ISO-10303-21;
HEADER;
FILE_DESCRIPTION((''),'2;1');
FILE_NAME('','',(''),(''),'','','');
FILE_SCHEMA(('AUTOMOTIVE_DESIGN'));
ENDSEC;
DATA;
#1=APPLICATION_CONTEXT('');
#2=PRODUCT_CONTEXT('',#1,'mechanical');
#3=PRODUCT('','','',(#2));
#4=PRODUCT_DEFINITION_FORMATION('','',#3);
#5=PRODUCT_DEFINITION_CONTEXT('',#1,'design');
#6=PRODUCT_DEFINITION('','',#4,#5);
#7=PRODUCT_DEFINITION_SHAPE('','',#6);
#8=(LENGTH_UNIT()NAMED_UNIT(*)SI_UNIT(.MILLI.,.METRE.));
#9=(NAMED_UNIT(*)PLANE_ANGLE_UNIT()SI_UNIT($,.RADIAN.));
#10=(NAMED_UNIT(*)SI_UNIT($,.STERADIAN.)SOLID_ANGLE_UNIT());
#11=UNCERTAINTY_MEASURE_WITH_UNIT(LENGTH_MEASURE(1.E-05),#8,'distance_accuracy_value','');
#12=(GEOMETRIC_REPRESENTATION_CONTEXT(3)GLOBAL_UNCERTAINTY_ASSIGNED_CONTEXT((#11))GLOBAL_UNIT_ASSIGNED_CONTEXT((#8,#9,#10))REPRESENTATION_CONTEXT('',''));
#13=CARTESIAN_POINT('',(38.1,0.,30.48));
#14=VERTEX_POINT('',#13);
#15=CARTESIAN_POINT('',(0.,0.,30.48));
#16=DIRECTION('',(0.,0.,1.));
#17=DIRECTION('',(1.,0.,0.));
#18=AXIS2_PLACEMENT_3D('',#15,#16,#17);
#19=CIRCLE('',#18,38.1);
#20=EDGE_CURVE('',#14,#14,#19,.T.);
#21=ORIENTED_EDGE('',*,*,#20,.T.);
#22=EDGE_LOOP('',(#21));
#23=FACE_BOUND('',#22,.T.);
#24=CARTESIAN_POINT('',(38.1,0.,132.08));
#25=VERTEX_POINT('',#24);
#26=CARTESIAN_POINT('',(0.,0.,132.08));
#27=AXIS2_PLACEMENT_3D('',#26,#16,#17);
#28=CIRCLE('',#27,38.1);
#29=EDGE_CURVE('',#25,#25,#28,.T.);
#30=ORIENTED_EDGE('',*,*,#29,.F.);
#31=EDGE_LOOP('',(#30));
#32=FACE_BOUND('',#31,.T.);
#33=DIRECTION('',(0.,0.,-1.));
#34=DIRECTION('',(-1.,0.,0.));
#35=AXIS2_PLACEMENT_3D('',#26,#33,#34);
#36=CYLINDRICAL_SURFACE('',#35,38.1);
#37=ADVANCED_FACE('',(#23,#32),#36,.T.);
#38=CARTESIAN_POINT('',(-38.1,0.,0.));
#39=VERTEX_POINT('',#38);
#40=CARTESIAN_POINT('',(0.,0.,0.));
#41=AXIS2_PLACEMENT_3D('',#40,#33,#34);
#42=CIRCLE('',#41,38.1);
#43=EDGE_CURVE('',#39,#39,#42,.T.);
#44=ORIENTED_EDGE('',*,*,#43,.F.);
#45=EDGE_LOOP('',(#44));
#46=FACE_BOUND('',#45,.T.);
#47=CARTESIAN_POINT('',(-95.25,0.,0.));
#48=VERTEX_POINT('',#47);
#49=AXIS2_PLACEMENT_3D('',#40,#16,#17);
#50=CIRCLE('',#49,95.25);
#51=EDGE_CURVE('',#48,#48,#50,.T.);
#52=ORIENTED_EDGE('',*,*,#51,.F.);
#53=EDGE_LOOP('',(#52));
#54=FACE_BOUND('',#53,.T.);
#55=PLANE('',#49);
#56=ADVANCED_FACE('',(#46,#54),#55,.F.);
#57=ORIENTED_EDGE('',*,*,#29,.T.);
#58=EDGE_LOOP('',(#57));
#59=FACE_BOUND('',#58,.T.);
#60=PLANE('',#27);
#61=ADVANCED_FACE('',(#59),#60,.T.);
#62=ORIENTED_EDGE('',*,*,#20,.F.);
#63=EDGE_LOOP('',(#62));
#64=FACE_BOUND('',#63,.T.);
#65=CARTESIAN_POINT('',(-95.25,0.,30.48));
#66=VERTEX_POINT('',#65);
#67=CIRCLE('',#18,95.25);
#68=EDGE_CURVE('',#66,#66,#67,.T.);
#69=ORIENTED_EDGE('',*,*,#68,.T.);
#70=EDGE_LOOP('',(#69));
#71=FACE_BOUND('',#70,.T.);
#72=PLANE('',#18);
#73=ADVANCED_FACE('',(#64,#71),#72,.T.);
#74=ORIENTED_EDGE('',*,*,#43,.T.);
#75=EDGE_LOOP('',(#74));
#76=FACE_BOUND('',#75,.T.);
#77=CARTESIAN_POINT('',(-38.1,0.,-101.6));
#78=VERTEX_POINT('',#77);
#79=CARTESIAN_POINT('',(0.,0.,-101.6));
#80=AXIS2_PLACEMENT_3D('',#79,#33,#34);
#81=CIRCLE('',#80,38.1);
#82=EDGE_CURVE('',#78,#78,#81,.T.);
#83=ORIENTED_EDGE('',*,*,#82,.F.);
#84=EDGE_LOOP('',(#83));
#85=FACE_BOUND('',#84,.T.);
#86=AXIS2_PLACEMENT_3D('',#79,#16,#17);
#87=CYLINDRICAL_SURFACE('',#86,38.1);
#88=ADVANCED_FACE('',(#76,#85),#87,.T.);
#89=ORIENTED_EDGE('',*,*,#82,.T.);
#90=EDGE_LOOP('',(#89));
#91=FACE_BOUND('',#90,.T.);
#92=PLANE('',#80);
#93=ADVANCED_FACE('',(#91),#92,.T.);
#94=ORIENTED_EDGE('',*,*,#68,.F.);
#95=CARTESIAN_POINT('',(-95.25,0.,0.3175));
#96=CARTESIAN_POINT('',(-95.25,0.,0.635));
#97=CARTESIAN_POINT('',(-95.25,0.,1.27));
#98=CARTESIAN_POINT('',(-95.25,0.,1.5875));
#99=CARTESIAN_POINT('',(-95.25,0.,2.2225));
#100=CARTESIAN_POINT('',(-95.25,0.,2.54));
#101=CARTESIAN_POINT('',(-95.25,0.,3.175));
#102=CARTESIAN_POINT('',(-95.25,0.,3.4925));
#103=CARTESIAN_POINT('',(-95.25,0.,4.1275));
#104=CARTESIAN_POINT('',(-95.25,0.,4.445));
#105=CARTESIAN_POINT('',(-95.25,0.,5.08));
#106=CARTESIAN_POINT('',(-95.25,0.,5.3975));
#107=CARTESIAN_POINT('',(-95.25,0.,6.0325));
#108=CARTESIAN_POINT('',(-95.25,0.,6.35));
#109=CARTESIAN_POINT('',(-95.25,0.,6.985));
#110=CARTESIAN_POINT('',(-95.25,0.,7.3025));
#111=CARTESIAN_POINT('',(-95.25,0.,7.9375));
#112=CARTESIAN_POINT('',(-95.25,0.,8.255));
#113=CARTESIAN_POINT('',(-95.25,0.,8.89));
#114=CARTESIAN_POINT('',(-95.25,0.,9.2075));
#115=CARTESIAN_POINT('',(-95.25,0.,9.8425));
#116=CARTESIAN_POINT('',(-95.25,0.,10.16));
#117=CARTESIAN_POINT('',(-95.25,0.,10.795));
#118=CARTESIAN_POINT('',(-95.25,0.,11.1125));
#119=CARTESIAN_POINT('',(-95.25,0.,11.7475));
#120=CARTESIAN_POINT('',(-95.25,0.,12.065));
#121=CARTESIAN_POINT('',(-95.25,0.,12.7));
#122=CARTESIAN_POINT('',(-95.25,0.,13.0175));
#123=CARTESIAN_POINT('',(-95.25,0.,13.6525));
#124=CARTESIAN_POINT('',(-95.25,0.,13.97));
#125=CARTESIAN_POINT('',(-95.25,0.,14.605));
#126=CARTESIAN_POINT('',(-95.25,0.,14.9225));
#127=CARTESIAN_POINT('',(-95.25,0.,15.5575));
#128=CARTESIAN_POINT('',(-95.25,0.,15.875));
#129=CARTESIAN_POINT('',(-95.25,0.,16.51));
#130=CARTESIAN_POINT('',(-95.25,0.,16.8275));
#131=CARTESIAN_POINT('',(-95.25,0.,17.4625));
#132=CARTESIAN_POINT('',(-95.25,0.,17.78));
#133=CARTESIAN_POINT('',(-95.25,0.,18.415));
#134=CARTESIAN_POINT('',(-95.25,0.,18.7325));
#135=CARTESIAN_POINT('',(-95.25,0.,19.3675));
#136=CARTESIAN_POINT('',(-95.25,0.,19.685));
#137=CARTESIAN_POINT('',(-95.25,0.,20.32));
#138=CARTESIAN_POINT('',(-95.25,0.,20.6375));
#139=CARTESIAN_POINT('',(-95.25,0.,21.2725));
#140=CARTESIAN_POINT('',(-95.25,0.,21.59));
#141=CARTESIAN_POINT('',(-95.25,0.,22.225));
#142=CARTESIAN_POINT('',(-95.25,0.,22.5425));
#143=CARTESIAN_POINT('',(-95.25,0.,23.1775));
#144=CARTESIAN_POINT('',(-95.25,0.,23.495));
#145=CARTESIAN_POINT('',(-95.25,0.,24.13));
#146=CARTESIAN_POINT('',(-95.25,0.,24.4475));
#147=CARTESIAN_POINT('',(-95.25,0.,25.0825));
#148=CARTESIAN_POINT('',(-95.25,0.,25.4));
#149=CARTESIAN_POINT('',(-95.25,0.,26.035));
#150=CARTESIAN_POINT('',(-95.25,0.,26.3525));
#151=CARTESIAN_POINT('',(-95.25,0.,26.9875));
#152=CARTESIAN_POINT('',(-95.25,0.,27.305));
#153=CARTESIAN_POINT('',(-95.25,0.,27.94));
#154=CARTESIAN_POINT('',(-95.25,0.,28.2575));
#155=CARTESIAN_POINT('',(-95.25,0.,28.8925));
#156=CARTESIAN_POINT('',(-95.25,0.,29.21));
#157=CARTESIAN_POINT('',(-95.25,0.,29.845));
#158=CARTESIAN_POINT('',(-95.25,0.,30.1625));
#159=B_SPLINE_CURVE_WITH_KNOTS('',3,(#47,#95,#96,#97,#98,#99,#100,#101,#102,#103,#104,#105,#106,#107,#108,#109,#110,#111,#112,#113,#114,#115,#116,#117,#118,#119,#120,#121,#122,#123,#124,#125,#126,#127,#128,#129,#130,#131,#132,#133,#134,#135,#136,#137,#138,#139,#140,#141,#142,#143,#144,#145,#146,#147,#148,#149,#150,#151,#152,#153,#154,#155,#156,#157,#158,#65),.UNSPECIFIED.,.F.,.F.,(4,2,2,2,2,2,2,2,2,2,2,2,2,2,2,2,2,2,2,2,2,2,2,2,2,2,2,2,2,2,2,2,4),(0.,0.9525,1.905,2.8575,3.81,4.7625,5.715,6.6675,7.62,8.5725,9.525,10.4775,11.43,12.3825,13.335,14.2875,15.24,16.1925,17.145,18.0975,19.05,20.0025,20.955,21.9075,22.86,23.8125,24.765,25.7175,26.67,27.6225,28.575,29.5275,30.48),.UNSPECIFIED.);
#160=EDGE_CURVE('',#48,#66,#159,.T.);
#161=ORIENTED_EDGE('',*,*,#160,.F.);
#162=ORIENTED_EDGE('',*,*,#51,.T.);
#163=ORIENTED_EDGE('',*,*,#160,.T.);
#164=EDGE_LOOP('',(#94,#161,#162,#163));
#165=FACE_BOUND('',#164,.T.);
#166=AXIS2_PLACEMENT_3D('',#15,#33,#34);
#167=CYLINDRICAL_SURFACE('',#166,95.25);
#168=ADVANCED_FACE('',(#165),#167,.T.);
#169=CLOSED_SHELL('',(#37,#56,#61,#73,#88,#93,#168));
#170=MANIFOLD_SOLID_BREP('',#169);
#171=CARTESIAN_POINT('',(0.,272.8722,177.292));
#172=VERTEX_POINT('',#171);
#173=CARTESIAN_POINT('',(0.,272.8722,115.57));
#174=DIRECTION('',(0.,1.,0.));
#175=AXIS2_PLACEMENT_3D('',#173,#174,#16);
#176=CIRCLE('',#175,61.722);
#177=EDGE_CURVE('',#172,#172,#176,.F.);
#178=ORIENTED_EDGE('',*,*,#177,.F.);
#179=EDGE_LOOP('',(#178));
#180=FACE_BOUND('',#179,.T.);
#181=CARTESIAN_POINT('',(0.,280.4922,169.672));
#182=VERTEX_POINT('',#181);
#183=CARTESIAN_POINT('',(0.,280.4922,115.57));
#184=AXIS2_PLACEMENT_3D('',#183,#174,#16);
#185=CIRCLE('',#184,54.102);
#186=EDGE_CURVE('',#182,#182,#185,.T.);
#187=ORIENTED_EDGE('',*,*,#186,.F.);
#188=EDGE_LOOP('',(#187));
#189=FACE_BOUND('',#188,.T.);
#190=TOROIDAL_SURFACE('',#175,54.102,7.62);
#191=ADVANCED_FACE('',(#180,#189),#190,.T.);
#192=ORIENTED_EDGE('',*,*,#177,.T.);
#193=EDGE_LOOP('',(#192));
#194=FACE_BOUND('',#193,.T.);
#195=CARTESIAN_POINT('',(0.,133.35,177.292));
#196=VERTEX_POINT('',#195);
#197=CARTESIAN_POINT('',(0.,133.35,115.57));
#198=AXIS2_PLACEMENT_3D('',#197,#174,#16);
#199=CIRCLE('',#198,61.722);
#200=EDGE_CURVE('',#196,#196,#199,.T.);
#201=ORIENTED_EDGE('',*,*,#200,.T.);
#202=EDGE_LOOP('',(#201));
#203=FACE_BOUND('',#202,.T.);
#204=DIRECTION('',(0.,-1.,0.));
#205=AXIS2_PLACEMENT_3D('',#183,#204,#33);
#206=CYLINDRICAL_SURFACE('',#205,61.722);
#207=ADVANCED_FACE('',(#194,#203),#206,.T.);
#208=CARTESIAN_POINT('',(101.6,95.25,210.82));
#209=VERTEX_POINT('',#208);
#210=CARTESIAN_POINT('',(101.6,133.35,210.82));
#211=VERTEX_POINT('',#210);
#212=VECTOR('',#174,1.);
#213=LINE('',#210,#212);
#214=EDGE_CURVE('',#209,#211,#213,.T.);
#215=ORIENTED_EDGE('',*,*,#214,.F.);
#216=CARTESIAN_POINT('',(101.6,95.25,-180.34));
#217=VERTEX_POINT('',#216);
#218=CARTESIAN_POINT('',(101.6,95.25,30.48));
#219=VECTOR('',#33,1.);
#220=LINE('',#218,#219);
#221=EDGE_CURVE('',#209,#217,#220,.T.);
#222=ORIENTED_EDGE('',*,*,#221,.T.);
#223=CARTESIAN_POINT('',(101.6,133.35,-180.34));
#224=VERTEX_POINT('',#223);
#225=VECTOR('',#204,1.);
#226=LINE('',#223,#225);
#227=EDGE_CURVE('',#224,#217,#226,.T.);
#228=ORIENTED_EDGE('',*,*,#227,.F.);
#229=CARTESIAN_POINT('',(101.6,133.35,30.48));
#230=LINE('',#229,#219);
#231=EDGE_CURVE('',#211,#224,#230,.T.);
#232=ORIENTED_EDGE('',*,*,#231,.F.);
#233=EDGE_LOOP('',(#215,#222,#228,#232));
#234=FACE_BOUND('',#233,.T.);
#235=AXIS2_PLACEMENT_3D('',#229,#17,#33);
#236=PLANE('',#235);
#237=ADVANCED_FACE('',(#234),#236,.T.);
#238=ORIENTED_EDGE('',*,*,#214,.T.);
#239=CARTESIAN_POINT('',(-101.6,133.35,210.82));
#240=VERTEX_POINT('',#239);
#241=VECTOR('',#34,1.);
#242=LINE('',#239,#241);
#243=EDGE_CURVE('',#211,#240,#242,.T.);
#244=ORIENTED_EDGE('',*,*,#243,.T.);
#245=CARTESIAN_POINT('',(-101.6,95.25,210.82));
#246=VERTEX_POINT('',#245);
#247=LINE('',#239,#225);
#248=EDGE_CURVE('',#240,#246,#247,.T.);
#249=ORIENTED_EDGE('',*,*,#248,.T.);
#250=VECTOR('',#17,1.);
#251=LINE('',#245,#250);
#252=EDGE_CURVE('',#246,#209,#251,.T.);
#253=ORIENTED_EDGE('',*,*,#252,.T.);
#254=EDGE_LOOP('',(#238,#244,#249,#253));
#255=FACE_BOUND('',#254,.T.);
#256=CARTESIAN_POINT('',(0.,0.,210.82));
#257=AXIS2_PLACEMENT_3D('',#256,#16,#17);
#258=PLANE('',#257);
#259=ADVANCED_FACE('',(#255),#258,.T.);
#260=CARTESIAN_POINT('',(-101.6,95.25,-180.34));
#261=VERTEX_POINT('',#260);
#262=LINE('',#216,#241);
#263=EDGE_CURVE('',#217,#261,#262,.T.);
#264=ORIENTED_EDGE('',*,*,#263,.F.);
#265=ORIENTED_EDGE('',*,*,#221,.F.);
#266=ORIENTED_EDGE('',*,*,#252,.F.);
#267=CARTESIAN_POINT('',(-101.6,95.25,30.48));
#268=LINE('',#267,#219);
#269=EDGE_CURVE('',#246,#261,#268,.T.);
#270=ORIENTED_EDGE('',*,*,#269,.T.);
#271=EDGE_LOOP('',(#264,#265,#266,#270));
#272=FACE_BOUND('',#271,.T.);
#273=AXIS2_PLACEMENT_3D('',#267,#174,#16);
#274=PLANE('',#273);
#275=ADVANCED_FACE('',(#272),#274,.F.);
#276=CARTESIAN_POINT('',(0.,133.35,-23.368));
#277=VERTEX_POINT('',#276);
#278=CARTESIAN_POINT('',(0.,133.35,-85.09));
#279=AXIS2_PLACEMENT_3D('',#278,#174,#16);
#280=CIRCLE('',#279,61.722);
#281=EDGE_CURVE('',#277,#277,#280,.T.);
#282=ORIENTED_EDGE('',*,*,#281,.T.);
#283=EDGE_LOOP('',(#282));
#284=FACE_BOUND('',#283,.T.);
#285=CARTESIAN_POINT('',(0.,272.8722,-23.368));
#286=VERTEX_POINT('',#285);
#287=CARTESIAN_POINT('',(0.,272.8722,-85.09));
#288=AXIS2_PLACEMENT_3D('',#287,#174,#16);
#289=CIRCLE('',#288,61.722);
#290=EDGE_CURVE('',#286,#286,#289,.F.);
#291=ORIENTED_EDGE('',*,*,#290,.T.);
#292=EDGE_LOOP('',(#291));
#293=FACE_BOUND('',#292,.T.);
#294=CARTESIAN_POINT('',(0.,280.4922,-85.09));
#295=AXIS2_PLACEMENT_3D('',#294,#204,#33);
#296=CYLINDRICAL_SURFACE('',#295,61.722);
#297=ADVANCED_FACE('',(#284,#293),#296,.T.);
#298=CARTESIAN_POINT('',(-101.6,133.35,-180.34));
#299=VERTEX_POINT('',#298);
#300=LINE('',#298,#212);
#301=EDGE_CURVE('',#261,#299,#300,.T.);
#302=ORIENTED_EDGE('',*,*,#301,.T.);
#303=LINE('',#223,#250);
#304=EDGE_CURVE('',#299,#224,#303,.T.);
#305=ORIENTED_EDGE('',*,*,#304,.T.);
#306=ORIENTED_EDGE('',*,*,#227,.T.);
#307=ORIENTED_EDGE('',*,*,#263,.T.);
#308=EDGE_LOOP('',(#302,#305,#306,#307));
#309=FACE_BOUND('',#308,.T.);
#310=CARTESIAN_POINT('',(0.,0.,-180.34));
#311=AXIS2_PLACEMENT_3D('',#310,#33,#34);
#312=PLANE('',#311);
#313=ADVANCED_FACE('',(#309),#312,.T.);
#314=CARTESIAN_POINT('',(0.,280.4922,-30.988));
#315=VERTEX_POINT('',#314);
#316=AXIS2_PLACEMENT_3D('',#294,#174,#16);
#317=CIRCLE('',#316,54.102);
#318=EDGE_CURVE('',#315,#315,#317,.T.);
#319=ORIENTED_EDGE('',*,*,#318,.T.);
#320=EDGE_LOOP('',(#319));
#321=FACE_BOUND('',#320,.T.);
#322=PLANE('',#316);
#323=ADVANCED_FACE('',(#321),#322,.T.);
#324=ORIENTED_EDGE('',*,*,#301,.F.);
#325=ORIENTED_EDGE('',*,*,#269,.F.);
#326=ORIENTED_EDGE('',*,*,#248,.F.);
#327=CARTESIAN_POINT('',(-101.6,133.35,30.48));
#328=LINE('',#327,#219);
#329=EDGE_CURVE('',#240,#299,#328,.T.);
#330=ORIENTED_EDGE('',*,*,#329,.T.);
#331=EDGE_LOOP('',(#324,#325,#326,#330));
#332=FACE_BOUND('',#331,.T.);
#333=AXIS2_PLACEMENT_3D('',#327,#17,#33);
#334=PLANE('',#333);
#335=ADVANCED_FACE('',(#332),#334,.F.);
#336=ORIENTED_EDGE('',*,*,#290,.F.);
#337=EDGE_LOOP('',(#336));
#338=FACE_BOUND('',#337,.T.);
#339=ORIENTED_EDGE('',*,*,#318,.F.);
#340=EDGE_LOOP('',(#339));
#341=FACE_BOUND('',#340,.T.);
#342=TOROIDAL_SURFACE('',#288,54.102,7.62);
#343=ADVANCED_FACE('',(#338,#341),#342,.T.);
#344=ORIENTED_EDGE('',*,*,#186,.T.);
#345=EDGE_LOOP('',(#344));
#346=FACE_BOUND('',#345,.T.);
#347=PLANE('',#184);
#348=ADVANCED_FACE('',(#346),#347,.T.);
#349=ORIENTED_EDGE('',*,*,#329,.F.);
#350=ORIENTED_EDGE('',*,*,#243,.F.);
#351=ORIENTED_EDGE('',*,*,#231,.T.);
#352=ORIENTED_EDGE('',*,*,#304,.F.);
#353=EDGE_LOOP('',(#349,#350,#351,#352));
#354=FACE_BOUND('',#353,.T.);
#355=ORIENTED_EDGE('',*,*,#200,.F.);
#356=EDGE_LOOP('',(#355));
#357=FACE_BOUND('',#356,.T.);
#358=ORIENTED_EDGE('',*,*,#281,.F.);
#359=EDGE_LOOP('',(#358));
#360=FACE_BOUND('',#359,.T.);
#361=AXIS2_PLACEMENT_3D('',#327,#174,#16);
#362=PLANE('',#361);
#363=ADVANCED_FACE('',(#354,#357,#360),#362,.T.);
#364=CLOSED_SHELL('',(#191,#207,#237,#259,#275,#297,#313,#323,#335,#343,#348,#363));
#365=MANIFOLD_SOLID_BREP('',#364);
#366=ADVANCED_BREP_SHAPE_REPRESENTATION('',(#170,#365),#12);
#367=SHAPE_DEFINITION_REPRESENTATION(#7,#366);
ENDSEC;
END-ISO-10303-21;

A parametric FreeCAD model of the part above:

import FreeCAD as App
import Part
import Sketcher

V = App.Vector
Q = App.Units.Quantity


def edges_at(feature, points):
    """Names of the edges that pass closest to the given points."""
    edges = feature.Shape.Edges
    near = lambda p: min(range(len(edges)), key=lambda i: edges[i].distToShape(Part.Vertex(*p))[0])
    return sorted({f"Edge{near(p) + 1}" for p in points})

doc = App.newDocument("Part")
body = doc.addObject("PartDesign::Body", "Body")

# Sketch on XY plane
sketch1 = body.newObject("Sketcher::SketchObject", "Sketch")
sketch1.AttachmentSupport = (doc.getObject("XY_Plane"), [""])
sketch1.MapMode = "FlatFace"
sketch1.addGeometry(Part.Circle(V(0, 0, 0), V(0, 0, 1), 95), False)
sketch1.addConstraint(Sketcher.Constraint("Coincident", 0, 3, -1, 1))
sketch1.addConstraint(Sketcher.Constraint("Diameter", 0, Q("7.5 in")))
pad1 = body.newObject("PartDesign::Pad", "Pad")
pad1.Profile = sketch1
pad1.Length = Q("1.2 in")

# Sketch on XY plane
sketch2 = body.newObject("Sketcher::SketchObject", "Sketch001")
sketch2.AttachmentSupport = (doc.getObject("XY_Plane"), [""])
sketch2.MapMode = "FlatFace"
sketch2.AttachmentOffset = App.Placement(V(0, 0, 1.2 * 25.4), App.Rotation())
sketch2.addGeometry(Part.Circle(V(0, 0, 0), V(0, 0, 1), 38), False)
sketch2.addConstraint(Sketcher.Constraint("Coincident", 0, 3, -1, 1))
sketch2.addConstraint(Sketcher.Constraint("Diameter", 0, Q("3 in")))
pad2 = body.newObject("PartDesign::Pad", "Pad001")
pad2.Profile = sketch2
pad2.Length = Q("4 in")

# Sketch on XY plane
sketch3 = body.newObject("Sketcher::SketchObject", "Sketch002")
sketch3.AttachmentSupport = (doc.getObject("XY_Plane"), [""])
sketch3.MapMode = "FlatFace"
sketch3.AttachmentOffset = App.Placement(V(0, 0, -4 * 25.4), App.Rotation())
sketch3.addGeometry(Part.Circle(V(0, 0, 0), V(0, 0, 1), 38), False)
sketch3.addConstraint(Sketcher.Constraint("Coincident", 0, 3, -1, 1))
sketch3.addConstraint(Sketcher.Constraint("Diameter", 0, Q("3 in")))
pad3 = body.newObject("PartDesign::Pad", "Pad002")
pad3.Profile = sketch3
pad3.Length = Q("4 in")
body2 = doc.addObject("PartDesign::Body", "Body001")

# Sketch on XY plane
sketch4 = body2.newObject("Sketcher::SketchObject", "Sketch003")
sketch4.AttachmentSupport = (doc.getObject("XY_Plane001"), [""])
sketch4.MapMode = "FlatFace"
sketch4.addGeometry(Part.LineSegment(V(-102, 133, 0), V(-102, 95, 0)), False)
sketch4.addGeometry(Part.LineSegment(V(-102, 95, 0), V(102, 95, 0)), False)
sketch4.addGeometry(Part.LineSegment(V(102, 95, 0), V(102, 133, 0)), False)
sketch4.addGeometry(Part.LineSegment(V(102, 133, 0), V(-102, 133, 0)), False)
sketch4.addConstraint(Sketcher.Constraint("Coincident", 0, 2, 1, 1))
sketch4.addConstraint(Sketcher.Constraint("Coincident", 1, 2, 2, 1))
sketch4.addConstraint(Sketcher.Constraint("Coincident", 2, 2, 3, 1))
sketch4.addConstraint(Sketcher.Constraint("Coincident", 3, 2, 0, 1))
sketch4.addConstraint(Sketcher.Constraint("Vertical", 0))
sketch4.addConstraint(Sketcher.Constraint("Horizontal", 1))
sketch4.addConstraint(Sketcher.Constraint("Vertical", 2))
sketch4.addConstraint(Sketcher.Constraint("Horizontal", 3))
sketch4.addConstraint(Sketcher.Constraint("DistanceX", 1, 1, 1, 2, Q("8 in")))
sketch4.addConstraint(Sketcher.Constraint("DistanceY", 0, 2, 0, 1, Q("1.5 in")))
sketch4.addConstraint(Sketcher.Constraint("DistanceX", 0, 2, -1, 1, Q("4 in")))
sketch4.addConstraint(Sketcher.Constraint("DistanceY", -1, 1, 0, 2, Q("3.75 in")))
pad4 = body2.newObject("PartDesign::Pad", "Pad003")
pad4.Profile = sketch4
pad4.Length = Q("1.2 in")

# Sketch on XY plane
sketch5 = body2.newObject("Sketcher::SketchObject", "Sketch004")
sketch5.AttachmentSupport = (doc.getObject("XY_Plane001"), [""])
sketch5.MapMode = "FlatFace"
sketch5.addGeometry(Part.LineSegment(V(102, 133, 0), V(102, 95, 0)), False)
sketch5.addGeometry(Part.LineSegment(V(102, 95, 0), V(-102, 95, 0)), False)
sketch5.addGeometry(Part.LineSegment(V(-102, 95, 0), V(-102, 133, 0)), False)
sketch5.addGeometry(Part.LineSegment(V(-102, 133, 0), V(102, 133, 0)), False)
sketch5.addConstraint(Sketcher.Constraint("Coincident", 0, 2, 1, 1))
sketch5.addConstraint(Sketcher.Constraint("Coincident", 1, 2, 2, 1))
sketch5.addConstraint(Sketcher.Constraint("Coincident", 2, 2, 3, 1))
sketch5.addConstraint(Sketcher.Constraint("Coincident", 3, 2, 0, 1))
sketch5.addConstraint(Sketcher.Constraint("Vertical", 0))
sketch5.addConstraint(Sketcher.Constraint("Horizontal", 1))
sketch5.addConstraint(Sketcher.Constraint("Vertical", 2))
sketch5.addConstraint(Sketcher.Constraint("Horizontal", 3))
sketch5.addConstraint(Sketcher.Constraint("DistanceX", 1, 2, 1, 1, Q("8 in")))
sketch5.addConstraint(Sketcher.Constraint("DistanceY", 0, 2, 0, 1, Q("1.5 in")))
sketch5.addConstraint(Sketcher.Constraint("DistanceX", -1, 1, 0, 2, Q("4 in")))
sketch5.addConstraint(Sketcher.Constraint("DistanceY", -1, 1, 0, 2, Q("3.75 in")))
pad5 = body2.newObject("PartDesign::Pad", "Pad004")
pad5.Profile = sketch5
pad5.Length = Q("7.1 in")
pad5.Reversed = True

# Sketch on XY plane
sketch6 = body2.newObject("Sketcher::SketchObject", "Sketch005")
sketch6.AttachmentSupport = (doc.getObject("XY_Plane001"), [""])
sketch6.MapMode = "FlatFace"
sketch6.AttachmentOffset = App.Placement(V(0, 0, 1.2 * 25.4), App.Rotation())
sketch6.addGeometry(Part.LineSegment(V(-102, 133, 0), V(-102, 95, 0)), False)
sketch6.addGeometry(Part.LineSegment(V(-102, 95, 0), V(102, 95, 0)), False)
sketch6.addGeometry(Part.LineSegment(V(102, 95, 0), V(102, 133, 0)), False)
sketch6.addGeometry(Part.LineSegment(V(102, 133, 0), V(-102, 133, 0)), False)
sketch6.addConstraint(Sketcher.Constraint("Coincident", 0, 2, 1, 1))
sketch6.addConstraint(Sketcher.Constraint("Coincident", 1, 2, 2, 1))
sketch6.addConstraint(Sketcher.Constraint("Coincident", 2, 2, 3, 1))
sketch6.addConstraint(Sketcher.Constraint("Coincident", 3, 2, 0, 1))
sketch6.addConstraint(Sketcher.Constraint("Vertical", 0))
sketch6.addConstraint(Sketcher.Constraint("Horizontal", 1))
sketch6.addConstraint(Sketcher.Constraint("Vertical", 2))
sketch6.addConstraint(Sketcher.Constraint("Horizontal", 3))
sketch6.addConstraint(Sketcher.Constraint("DistanceX", 1, 1, 1, 2, Q("8 in")))
sketch6.addConstraint(Sketcher.Constraint("DistanceY", 0, 2, 0, 1, Q("1.5 in")))
sketch6.addConstraint(Sketcher.Constraint("DistanceX", 0, 2, -1, 1, Q("4 in")))
sketch6.addConstraint(Sketcher.Constraint("DistanceY", -1, 1, 0, 2, Q("3.75 in")))
pad6 = body2.newObject("PartDesign::Pad", "Pad005")
pad6.Profile = sketch6
pad6.Length = Q("7.1 in")

# Sketch on XZ plane
sketch7 = body2.newObject("Sketcher::SketchObject", "Sketch006")
sketch7.AttachmentSupport = (doc.getObject("XZ_Plane001"), [""])
sketch7.MapMode = "FlatFace"
sketch7.AttachmentOffset = App.Placement(V(0, 0, -5.25 * 25.4), App.Rotation())
sketch7.addGeometry(Part.Circle(V(0, 116, 0), V(0, 0, 1), 62), False)
sketch7.addGeometry(Part.Circle(V(0, -85, 0), V(0, 0, 1), 62), False)
sketch7.addConstraint(Sketcher.Constraint("Equal", 0, 1))
sketch7.addConstraint(Sketcher.Constraint("PointOnObject", 0, 3, -2))
sketch7.addConstraint(Sketcher.Constraint("PointOnObject", 1, 3, -2))
sketch7.addConstraint(Sketcher.Constraint("Diameter", 0, Q("4.86 in")))
sketch7.addConstraint(Sketcher.Constraint("DistanceY", 1, 3, 0, 3, Q("7.9 in")))
sketch7.addConstraint(Sketcher.Constraint("DistanceY", -1, 1, 0, 3, Q("4.55 in")))
pad7 = body2.newObject("PartDesign::Pad", "Pad006")
pad7.Profile = sketch7
pad7.Length = Q("5.793 in")
pad7.Reversed = True
doc.recompute()

fillet = body2.newObject("PartDesign::Fillet", "Fillet")
fillet.Base = (pad7, edges_at(pad7, [(0, 280.492, 53.848), (0, 280.492, -146.812)]))
fillet.Radius = Q("0.3 in")

doc.recompute()
